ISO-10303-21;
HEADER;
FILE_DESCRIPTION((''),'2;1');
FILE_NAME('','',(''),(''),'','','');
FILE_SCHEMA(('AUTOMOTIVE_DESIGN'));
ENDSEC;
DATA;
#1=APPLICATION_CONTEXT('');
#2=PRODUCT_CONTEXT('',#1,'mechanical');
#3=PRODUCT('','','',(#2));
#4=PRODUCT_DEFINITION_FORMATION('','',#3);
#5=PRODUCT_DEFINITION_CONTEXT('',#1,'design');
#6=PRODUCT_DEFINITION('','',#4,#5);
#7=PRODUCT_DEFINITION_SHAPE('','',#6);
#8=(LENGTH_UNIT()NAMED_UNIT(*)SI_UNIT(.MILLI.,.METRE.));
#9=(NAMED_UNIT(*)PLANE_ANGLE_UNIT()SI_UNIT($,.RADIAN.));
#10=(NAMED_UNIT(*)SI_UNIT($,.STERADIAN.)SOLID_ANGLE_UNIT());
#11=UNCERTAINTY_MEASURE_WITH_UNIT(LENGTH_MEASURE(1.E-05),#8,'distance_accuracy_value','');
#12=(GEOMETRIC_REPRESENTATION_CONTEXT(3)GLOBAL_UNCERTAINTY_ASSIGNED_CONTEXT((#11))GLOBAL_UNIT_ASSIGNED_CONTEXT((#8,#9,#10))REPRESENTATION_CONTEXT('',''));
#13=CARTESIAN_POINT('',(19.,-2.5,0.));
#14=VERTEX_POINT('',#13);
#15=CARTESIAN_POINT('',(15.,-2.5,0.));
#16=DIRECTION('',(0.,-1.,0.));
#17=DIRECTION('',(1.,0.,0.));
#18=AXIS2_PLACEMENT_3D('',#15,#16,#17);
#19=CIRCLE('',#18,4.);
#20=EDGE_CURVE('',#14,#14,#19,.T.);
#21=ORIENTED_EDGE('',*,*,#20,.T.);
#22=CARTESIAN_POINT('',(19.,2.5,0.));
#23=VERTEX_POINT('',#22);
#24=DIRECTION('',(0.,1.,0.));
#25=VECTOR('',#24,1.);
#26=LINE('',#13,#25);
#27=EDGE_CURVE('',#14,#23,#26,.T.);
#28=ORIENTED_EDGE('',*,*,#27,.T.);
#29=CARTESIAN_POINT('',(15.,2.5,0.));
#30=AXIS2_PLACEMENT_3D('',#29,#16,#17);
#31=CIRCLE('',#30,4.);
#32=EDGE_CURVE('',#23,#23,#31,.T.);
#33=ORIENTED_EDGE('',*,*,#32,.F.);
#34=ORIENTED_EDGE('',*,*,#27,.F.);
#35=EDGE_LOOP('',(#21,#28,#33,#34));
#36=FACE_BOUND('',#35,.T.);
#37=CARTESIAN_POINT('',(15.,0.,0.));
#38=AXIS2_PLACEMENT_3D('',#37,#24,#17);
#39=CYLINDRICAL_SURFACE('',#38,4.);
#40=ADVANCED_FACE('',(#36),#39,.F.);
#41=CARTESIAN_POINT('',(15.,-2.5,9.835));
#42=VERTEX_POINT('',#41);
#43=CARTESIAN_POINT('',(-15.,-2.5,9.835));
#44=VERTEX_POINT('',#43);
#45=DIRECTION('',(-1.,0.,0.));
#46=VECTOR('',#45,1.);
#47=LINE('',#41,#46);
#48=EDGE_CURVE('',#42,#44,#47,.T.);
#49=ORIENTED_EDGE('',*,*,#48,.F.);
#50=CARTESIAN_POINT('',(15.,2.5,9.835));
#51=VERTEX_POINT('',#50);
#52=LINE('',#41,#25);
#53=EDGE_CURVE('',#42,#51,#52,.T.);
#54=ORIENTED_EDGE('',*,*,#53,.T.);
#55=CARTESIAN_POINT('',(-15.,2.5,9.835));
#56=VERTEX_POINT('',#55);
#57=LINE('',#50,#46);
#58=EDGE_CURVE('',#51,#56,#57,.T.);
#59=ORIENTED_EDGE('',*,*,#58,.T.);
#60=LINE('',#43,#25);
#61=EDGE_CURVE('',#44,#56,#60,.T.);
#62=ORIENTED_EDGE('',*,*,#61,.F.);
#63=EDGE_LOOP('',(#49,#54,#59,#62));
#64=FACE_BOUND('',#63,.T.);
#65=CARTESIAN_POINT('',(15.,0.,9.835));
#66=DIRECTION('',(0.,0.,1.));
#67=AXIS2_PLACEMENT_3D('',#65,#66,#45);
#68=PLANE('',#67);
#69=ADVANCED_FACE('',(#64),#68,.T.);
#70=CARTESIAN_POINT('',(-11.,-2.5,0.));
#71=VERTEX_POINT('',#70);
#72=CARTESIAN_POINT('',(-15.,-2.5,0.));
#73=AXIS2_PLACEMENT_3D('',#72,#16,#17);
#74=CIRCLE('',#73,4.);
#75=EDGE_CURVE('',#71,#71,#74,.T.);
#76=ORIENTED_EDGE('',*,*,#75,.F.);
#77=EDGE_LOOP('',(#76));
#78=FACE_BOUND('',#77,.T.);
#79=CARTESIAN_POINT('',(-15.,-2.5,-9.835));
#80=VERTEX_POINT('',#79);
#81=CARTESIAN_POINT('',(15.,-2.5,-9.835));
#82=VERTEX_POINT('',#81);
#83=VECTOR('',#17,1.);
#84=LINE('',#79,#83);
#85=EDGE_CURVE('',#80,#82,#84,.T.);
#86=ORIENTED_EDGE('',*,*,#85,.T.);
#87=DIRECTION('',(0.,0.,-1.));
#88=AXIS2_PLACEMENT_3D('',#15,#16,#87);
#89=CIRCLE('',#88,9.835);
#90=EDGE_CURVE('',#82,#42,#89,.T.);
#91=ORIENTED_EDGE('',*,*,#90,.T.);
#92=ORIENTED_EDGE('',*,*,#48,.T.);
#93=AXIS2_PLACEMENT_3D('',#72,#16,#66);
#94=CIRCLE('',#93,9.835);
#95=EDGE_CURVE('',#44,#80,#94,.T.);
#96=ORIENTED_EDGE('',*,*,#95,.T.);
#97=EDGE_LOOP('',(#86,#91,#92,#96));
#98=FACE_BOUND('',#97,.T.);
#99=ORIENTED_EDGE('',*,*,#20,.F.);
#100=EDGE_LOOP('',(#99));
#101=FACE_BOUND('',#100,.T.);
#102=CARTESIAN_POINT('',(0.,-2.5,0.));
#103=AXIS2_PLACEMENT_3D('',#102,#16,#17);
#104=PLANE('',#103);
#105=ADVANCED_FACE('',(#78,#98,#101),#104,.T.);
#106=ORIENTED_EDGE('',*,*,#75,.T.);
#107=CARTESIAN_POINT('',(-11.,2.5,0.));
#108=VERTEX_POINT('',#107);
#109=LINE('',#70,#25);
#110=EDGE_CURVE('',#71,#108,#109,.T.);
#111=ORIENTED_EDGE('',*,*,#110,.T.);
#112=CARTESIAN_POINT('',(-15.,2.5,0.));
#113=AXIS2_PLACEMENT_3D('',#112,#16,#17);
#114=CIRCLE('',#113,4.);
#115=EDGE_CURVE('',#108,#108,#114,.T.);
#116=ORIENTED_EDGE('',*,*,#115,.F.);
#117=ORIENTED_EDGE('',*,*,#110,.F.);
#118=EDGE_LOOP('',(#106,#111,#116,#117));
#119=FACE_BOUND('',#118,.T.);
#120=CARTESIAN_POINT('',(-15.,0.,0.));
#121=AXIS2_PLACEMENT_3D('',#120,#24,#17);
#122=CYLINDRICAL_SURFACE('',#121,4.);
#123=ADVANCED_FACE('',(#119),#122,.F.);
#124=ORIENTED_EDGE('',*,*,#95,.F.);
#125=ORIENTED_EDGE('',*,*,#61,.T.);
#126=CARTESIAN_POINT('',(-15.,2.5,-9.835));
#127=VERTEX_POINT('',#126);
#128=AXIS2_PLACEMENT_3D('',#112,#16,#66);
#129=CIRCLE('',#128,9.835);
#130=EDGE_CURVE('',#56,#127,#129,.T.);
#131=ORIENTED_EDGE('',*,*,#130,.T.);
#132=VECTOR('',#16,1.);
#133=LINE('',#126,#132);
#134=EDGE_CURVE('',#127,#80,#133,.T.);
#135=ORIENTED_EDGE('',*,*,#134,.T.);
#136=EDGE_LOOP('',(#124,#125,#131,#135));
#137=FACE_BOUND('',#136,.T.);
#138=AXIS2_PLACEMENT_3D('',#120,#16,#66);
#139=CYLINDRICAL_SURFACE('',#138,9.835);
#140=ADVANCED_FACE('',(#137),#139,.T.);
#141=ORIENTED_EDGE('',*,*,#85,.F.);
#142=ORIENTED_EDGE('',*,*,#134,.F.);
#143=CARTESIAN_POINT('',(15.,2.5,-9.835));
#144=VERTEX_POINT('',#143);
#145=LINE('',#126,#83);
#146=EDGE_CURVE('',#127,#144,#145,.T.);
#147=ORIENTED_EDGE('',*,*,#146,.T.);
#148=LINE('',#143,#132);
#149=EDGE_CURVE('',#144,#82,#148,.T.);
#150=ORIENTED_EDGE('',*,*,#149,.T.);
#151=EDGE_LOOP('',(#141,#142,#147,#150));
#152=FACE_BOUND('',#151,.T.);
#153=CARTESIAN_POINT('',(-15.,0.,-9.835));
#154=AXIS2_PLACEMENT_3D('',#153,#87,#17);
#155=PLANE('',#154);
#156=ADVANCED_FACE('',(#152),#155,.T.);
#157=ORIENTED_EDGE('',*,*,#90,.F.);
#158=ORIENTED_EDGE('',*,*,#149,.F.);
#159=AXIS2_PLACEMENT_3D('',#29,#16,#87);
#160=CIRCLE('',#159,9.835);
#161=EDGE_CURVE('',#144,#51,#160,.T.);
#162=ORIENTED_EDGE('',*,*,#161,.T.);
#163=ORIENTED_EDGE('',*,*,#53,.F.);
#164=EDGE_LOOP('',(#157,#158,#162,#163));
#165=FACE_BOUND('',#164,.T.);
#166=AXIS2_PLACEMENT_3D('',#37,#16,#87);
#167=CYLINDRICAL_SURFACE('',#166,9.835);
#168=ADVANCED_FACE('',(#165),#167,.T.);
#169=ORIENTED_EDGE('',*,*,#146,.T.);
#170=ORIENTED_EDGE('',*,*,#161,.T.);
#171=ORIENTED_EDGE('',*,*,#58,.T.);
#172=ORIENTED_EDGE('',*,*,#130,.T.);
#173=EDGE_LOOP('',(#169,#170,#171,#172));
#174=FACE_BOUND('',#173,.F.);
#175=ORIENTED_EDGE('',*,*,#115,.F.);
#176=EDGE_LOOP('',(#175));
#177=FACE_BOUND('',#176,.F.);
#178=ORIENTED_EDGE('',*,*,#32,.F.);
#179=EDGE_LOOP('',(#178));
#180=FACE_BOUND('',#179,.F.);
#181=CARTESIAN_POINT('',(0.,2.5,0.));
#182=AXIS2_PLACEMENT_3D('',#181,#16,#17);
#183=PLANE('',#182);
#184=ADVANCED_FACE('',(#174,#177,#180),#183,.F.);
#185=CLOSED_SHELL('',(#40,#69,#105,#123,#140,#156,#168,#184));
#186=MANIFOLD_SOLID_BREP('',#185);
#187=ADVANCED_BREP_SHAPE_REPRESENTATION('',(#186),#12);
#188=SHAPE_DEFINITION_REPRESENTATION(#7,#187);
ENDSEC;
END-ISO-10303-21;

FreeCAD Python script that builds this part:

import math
import FreeCAD as App
import Part
import Sketcher
Q = App.Units.Quantity

doc = App.newDocument("Part")
params = doc.addObject("Spreadsheet::Sheet", "Params")
for row, (alias, value) in enumerate([
    ("sketch1_diameter", "8 mm"),
    ("sketch1_width", "30 mm"),
    ("pad1_length", "5 mm"),
], start=1):
    params.set(f"A{row}", alias)
    params.set(f"B{row}", "=" + value)
    params.setAlias(f"B{row}", alias)

body = doc.addObject("PartDesign::Body", "Body")

# Sketch on XZ plane
sketch1 = body.newObject("Sketcher::SketchObject", "Sketch")
sketch1.AttachmentSupport = (doc.getObject("XZ_Plane"), [""])
sketch1.MapMode = "FlatFace"
sketch1.addGeometry([
    Part.ArcOfCircle(Part.Circle(App.Vector(-15, 0, 0), App.Vector(0, 0, 1), 9.835), math.radians(90), math.radians(270)),  # 0
    Part.LineSegment(App.Vector(-15, -9.835, 0), App.Vector(15, -9.835, 0)),  # 1
    Part.ArcOfCircle(Part.Circle(App.Vector(15, 0, 0), App.Vector(0, 0, 1), 9.835), math.radians(-90), math.radians(90)),  # 2
    Part.LineSegment(App.Vector(15, 9.835, 0), App.Vector(-15, 9.835, 0)),  # 3
    Part.Circle(App.Vector(-15, 0, 0), App.Vector(0, 0, 1), 4),  # 4
    Part.Circle(App.Vector(15, 0, 0), App.Vector(0, 0, 1), 4),  # 5
], False)
sketch1.addConstraint([
    Sketcher.Constraint("Tangent", 0, 2, 1, 1),
    Sketcher.Constraint("Tangent", 1, 2, 2, 1),
    Sketcher.Constraint("Tangent", 2, 2, 3, 1),
    Sketcher.Constraint("Tangent", 3, 2, 0, 1),
    Sketcher.Constraint("Horizontal", 1),
    Sketcher.Constraint("Horizontal", 3),
    Sketcher.Constraint("Coincident", 4, 3, 0, 3),
    Sketcher.Constraint("Coincident", 5, 3, 2, 3),
    Sketcher.Constraint("Equal", 4, 5),
    Sketcher.Constraint("Symmetric", 0, 3, 2, 3, -1, 1),
    Sketcher.Constraint("Diameter", 4, Q("8 mm")),
    Sketcher.Constraint("DistanceX", 1, 1, 1, 2, Q("30 mm")),
    Sketcher.Constraint("Radius", 0, Q("9.835 mm")),
])
sketch1.setExpression("Constraints[10]", "Params.sketch1_diameter")
sketch1.setExpression("Constraints[11]", "Params.sketch1_width")
pad1 = body.newObject("PartDesign::Pad", "Pad")
pad1.Profile = sketch1
pad1.setExpression("Length", "Params.pad1_length")
pad1.Midplane = True

doc.recompute()
